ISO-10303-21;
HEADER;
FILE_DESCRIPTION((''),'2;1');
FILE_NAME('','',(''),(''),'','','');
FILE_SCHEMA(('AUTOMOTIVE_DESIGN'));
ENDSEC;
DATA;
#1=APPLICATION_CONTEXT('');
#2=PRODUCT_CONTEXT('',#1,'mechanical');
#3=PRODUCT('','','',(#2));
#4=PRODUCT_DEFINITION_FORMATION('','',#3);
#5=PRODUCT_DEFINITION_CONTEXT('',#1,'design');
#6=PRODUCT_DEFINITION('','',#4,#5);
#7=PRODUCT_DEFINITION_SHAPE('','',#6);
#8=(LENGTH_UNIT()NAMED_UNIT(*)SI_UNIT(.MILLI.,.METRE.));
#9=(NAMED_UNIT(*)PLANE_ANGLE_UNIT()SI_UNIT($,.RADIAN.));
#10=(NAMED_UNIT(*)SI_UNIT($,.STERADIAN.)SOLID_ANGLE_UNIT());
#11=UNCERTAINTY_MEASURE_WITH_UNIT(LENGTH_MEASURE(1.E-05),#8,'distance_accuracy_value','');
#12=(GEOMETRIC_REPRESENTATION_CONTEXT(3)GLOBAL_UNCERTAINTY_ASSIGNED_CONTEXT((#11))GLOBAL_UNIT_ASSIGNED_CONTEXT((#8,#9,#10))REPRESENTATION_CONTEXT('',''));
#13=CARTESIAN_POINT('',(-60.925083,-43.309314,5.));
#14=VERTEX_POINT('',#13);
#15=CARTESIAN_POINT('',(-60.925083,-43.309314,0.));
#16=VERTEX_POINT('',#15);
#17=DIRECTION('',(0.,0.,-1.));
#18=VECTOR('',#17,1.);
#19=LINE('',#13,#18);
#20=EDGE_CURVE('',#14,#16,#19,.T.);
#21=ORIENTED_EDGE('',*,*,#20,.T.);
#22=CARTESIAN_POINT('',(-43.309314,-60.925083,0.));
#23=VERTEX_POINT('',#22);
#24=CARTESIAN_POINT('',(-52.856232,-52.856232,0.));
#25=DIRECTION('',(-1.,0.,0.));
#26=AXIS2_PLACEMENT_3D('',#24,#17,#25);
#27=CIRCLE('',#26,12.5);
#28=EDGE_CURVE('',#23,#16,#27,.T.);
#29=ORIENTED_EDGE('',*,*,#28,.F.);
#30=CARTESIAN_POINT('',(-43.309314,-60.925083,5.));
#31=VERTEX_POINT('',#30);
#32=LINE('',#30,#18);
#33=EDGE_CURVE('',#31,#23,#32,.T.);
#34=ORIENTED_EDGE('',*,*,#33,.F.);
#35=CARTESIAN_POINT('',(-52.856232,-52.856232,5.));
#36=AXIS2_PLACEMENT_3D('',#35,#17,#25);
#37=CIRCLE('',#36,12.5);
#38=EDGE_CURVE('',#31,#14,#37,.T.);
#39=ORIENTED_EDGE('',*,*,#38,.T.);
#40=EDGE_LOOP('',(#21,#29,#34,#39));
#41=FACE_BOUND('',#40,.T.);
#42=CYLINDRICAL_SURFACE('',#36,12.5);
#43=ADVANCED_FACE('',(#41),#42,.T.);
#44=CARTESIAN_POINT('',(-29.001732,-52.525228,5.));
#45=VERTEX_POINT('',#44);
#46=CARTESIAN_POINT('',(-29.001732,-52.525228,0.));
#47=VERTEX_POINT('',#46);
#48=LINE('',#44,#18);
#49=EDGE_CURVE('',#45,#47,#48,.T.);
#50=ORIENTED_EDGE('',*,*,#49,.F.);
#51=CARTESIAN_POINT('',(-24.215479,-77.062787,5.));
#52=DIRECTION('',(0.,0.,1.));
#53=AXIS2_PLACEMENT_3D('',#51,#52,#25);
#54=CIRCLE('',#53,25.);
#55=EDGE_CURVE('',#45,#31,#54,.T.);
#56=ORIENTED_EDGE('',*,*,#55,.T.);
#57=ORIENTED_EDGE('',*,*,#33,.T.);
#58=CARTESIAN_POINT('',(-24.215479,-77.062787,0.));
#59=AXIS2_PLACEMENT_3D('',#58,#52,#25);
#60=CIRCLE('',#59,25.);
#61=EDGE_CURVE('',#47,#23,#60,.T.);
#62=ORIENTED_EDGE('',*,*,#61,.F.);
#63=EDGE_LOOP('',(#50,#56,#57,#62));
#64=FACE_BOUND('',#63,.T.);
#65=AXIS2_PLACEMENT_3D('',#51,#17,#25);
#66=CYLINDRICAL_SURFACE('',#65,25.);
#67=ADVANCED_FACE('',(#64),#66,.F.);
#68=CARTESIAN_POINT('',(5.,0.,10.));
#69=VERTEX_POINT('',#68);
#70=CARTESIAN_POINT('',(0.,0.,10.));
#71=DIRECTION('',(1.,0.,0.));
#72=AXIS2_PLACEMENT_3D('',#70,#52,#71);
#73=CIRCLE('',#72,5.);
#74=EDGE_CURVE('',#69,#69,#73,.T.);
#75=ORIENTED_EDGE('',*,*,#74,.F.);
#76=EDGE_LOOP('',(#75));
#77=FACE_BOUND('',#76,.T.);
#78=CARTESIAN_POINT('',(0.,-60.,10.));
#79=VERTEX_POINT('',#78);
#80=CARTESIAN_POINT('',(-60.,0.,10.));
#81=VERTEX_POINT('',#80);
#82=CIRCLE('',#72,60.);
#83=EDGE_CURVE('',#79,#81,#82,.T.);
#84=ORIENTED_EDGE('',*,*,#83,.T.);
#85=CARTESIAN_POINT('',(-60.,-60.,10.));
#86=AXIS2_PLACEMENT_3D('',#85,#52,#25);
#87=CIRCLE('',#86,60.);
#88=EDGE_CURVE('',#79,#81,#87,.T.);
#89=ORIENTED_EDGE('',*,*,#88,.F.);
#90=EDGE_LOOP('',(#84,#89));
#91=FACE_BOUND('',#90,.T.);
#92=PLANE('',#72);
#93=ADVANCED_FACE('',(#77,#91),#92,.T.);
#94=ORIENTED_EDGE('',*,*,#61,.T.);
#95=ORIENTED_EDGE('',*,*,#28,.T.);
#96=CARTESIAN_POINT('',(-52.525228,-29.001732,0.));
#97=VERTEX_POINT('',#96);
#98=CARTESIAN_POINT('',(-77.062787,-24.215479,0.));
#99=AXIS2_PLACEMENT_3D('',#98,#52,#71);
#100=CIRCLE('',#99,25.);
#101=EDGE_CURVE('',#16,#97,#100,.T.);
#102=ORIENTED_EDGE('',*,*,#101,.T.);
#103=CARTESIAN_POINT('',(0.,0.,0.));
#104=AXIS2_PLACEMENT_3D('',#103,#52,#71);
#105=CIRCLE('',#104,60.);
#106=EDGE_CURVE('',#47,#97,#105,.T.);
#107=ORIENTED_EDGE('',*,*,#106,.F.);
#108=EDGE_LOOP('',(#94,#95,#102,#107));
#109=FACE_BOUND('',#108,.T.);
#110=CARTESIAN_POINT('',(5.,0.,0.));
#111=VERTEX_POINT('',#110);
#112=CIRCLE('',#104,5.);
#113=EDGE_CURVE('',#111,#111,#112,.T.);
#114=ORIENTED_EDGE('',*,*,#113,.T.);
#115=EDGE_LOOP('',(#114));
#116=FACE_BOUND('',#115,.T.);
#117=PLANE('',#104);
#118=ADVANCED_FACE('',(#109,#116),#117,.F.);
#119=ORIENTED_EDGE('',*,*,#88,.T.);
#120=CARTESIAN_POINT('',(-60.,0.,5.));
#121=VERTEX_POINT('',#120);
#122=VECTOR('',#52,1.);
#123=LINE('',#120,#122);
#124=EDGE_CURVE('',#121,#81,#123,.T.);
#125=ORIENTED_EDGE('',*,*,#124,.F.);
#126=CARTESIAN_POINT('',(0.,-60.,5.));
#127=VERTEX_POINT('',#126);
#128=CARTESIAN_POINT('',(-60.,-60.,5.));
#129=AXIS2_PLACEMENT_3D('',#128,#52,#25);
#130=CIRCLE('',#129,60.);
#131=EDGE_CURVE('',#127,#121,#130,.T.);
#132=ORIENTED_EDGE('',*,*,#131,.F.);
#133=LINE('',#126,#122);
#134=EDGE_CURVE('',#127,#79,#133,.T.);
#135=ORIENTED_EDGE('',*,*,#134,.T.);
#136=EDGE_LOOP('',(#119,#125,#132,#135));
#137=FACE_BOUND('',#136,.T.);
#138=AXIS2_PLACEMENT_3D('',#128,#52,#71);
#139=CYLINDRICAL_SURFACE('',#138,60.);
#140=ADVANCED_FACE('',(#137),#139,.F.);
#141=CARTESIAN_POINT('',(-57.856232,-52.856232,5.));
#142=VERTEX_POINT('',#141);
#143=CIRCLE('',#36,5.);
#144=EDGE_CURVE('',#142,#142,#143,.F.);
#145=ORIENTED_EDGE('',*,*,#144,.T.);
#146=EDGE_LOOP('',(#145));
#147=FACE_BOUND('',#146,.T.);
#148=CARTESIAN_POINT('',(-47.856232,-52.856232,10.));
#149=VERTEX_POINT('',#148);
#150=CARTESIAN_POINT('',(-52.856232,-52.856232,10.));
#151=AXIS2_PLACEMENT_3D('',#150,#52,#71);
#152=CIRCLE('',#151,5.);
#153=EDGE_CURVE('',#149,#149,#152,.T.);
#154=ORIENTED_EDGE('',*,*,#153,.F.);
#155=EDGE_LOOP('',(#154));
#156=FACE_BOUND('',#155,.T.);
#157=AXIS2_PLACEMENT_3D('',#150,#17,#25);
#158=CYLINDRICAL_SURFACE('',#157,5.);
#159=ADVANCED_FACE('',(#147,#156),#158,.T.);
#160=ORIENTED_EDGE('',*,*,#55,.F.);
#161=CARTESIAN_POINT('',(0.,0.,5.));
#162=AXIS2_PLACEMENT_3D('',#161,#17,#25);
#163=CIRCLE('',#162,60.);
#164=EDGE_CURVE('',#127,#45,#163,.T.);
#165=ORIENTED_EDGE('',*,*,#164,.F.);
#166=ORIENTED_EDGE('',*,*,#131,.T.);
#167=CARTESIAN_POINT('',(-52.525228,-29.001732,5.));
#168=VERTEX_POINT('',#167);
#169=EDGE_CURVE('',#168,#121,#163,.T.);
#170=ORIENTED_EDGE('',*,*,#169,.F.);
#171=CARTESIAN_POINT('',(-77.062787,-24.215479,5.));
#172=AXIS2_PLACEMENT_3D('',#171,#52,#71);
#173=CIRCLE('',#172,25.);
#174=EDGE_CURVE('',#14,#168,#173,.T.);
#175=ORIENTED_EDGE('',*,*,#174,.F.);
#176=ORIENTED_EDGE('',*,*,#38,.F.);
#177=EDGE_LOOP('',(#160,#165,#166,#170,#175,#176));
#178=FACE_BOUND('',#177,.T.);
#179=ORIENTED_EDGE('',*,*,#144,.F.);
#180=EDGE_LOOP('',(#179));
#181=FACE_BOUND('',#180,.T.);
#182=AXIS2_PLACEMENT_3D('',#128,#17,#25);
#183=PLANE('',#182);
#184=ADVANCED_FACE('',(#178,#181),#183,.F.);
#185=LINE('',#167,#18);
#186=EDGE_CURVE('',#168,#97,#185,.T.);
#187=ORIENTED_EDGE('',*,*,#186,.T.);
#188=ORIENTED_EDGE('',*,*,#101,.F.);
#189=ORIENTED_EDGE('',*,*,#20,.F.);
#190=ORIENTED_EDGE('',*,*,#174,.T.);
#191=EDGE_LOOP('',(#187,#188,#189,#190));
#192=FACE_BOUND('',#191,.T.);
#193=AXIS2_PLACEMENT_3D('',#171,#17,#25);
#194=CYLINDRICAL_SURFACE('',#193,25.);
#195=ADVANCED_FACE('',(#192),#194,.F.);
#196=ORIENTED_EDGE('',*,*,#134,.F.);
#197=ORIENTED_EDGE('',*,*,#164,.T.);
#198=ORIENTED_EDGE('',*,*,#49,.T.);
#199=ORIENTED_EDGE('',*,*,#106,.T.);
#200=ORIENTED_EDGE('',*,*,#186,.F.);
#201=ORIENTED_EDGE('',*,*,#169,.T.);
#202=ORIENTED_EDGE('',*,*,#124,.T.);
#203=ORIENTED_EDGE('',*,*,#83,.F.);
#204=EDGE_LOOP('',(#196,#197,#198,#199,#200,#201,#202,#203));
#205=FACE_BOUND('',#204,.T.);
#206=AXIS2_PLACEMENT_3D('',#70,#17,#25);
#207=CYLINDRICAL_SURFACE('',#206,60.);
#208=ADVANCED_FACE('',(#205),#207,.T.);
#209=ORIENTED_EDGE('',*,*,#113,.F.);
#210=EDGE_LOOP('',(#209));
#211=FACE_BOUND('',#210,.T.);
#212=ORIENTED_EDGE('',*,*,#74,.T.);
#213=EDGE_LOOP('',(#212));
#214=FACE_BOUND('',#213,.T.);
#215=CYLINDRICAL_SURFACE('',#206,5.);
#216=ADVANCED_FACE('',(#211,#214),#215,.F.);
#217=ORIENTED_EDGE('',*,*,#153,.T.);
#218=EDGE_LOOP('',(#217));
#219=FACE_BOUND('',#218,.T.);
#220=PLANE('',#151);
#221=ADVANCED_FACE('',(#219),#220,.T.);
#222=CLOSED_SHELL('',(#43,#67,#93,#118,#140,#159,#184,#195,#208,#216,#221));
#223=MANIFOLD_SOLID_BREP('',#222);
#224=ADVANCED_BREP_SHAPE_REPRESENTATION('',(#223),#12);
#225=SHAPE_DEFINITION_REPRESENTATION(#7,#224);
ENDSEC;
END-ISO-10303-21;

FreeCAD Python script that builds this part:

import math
import FreeCAD as App
import Part
import Sketcher

V = App.Vector

doc = App.newDocument("Part")
body = doc.addObject("PartDesign::Body", "Body")

# Sketch on XY plane
sketch1 = body.newObject("Sketcher::SketchObject", "Sketch")
sketch1.AttachmentSupport = (doc.getObject("XY_Plane"), [""])
sketch1.MapMode = "FlatFace"
sketch1.addGeometry([
    Part.Circle(V(0, 0, 0), V(0, 0, 1), 60),
    Part.Circle(V(0, 0, 0), V(0, 0, 1), 5),
], False)
sketch1.addConstraint([
    Sketcher.Constraint("Coincident", 0, 3, -1, 1),
    Sketcher.Constraint("Coincident", 1, 3, -1, 1),
    Sketcher.Constraint("Diameter", 0, 120.0),
    Sketcher.Constraint("Diameter", 1, 10.0),
])
pad1 = body.newObject("PartDesign::Pad", "Pad")
pad1.Profile = sketch1
pad1.Length = 10

# Sketch on XY plane
sketch2 = body.newObject("Sketcher::SketchObject", "Sketch001")
sketch2.AttachmentSupport = (doc.getObject("XY_Plane"), [""])
sketch2.MapMode = "FlatFace"
sketch2.AttachmentOffset = App.Placement(V(0, 0, 10), App.Rotation())
sketch2.addGeometry([
    Part.LineSegment(V(-60, 0, 0), V(-60, -60, 0)),
    Part.LineSegment(V(-60, -60, 0), V(0, -60, 0)),
    Part.ArcOfCircle(Part.Circle(V(-60, -60, 0), V(0, 0, 1), 60), math.radians(0), math.radians(90)),
], False)
sketch2.addConstraint([
    Sketcher.Constraint("Coincident", 0, 2, 1, 1),
    Sketcher.Constraint("Coincident", 1, 2, 2, 1),
    Sketcher.Constraint("Coincident", 2, 2, 0, 1),
    Sketcher.Constraint("Vertical", 0),
    Sketcher.Constraint("Horizontal", 1),
    Sketcher.Constraint("Coincident", 0, 2, 2, 3),
    Sketcher.Constraint("PointOnObject", 1, 2, -2),
    Sketcher.Constraint("PointOnObject", 2, 2, -1),
    Sketcher.Constraint("Radius", 2, 60.0),
])
pocket1 = body.newObject("PartDesign::Pocket", "Pocket")
pocket1.Profile = sketch2
pocket1.Length = 5

# Sketch on XY plane
sketch3 = body.newObject("Sketcher::SketchObject", "Sketch002")
sketch3.AttachmentSupport = (doc.getObject("XY_Plane"), [""])
sketch3.MapMode = "FlatFace"
sketch3.addGeometry([
    Part.ArcOfCircle(Part.Circle(V(0, 0, 0), V(0, 0, 1), 60), math.radians(-151), math.radians(-119)),
    Part.ArcOfCircle(Part.Circle(V(-24, -77, 0), V(0, 0, 1), 25), math.radians(101), math.radians(140)),
    Part.ArcOfCircle(Part.Circle(V(-53, -53, 0), V(0, 0, 1), 12), math.radians(130), math.radians(320)),
    Part.ArcOfCircle(Part.Circle(V(-77, -24, 0), V(0, 0, 1), 25), math.radians(-50), math.radians(-11)),
], False)
sketch3.addConstraint([
    Sketcher.Constraint("Coincident", 0, 2, 1, 1),
    Sketcher.Constraint("Tangent", 1, 2, 2, 2),
    Sketcher.Constraint("Tangent", 2, 1, 3, 1),
    Sketcher.Constraint("Coincident", 3, 2, 0, 1),
    Sketcher.Constraint("Coincident", 0, 3, -1, 1),
    Sketcher.Constraint("Equal", 1, 3),
    Sketcher.Constraint("Radius", 0, 60.0),
    Sketcher.Constraint("Radius", 1, 25.0),
    Sketcher.Constraint("Radius", 2, 12.5),
    Sketcher.Constraint("DistanceX", 2, 3, 0, 2, 23.8545),
    Sketcher.Constraint("DistanceY", 2, 3, 3, 2, 23.8545),
    Sketcher.Constraint("DistanceX", 1, 3, -1, 1, 24.215479),
    Sketcher.Constraint("DistanceX", 2, 3, -1, 1, 52.856232),
])
pad2 = body.newObject("PartDesign::Pad", "Pad001")
pad2.Profile = sketch3
pad2.Length = 5

# Sketch on XY plane
sketch4 = body.newObject("Sketcher::SketchObject", "Sketch003")
sketch4.AttachmentSupport = (doc.getObject("XY_Plane"), [""])
sketch4.MapMode = "FlatFace"
sketch4.AttachmentOffset = App.Placement(V(0, 0, 5), App.Rotation())
sketch4.addGeometry(Part.Circle(V(-53, -53, 0), V(0, 0, 1), 5), False)
sketch4.addConstraint([
    Sketcher.Constraint("Diameter", 0, 10.0),
    Sketcher.Constraint("DistanceX", 0, 3, -1, 1, 52.856232),
    Sketcher.Constraint("DistanceY", 0, 3, -1, 1, 52.856232),
])
pad3 = body.newObject("PartDesign::Pad", "Pad002")
pad3.Profile = sketch4
pad3.Length = 5

doc.recompute()
